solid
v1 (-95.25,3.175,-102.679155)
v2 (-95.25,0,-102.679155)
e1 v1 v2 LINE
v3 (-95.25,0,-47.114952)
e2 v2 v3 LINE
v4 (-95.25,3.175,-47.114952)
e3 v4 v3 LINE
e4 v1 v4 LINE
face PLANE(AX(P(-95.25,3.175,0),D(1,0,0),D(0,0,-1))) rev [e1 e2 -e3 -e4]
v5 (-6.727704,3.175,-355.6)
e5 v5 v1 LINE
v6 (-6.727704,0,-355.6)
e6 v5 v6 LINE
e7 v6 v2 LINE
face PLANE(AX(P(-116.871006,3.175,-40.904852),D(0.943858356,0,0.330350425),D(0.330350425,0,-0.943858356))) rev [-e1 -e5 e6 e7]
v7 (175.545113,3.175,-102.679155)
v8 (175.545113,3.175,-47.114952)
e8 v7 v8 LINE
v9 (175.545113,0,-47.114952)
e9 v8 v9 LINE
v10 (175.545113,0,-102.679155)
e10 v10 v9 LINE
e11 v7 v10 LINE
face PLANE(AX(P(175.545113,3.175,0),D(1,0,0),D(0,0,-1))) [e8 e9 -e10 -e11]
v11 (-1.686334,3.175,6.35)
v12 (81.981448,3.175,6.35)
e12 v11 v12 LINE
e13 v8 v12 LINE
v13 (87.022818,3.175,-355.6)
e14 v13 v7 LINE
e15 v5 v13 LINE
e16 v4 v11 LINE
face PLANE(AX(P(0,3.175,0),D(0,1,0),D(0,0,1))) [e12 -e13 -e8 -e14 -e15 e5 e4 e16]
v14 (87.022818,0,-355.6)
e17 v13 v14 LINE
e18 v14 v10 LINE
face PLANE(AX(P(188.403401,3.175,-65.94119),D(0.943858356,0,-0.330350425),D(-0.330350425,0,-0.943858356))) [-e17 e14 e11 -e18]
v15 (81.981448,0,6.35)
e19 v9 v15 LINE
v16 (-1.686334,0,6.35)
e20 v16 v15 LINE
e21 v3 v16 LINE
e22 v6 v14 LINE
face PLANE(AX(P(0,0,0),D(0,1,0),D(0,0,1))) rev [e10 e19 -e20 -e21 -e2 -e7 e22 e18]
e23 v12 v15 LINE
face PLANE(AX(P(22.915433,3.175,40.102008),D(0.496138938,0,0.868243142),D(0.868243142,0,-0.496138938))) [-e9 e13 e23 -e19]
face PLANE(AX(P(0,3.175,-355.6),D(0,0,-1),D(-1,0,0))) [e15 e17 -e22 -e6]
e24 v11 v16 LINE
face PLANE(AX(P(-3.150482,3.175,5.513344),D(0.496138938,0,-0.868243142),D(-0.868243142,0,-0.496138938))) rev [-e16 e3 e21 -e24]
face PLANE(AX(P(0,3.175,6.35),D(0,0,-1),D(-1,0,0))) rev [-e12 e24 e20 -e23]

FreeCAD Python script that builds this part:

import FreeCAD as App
import Part
import Sketcher
from FreeCAD import Vector
Q = App.Units.Quantity

doc = App.newDocument("Part")
body = doc.addObject("PartDesign::Body", "Body")

# Sketch on XZ plane
sketch1 = doc.addObject("Sketcher::SketchObject", "Sketch")
body.addObject(sketch1)
sketch1.AttachmentSupport = (doc.XZ_Plane, [""])
sketch1.MapMode = "FlatFace"
sketch1.addGeometry([
    Part.LineSegment(Vector(-7, -356, 0), Vector(-95, -103, 0)),  # 0
    Part.LineSegment(Vector(-95, -103, 0), Vector(-95, -47, 0)),  # 1
    Part.LineSegment(Vector(-95, -47, 0), Vector(-2, 6, 0)),  # 2
    Part.LineSegment(Vector(-2, 6, 0), Vector(82, 6, 0)),  # 3
    Part.LineSegment(Vector(82, 6, 0), Vector(176, -47, 0)),  # 4
    Part.LineSegment(Vector(176, -47, 0), Vector(176, -103, 0)),  # 5
    Part.LineSegment(Vector(176, -103, 0), Vector(87, -356, 0)),  # 6
    Part.LineSegment(Vector(87, -356, 0), Vector(-7, -356, 0)),  # 7
], False)
sketch1.addConstraint([
    Sketcher.Constraint("Coincident", 0, 2, 1, 1),
    Sketcher.Constraint("Coincident", 1, 2, 2, 1),
    Sketcher.Constraint("Coincident", 2, 2, 3, 1),
    Sketcher.Constraint("Coincident", 3, 2, 4, 1),
    Sketcher.Constraint("Coincident", 4, 2, 5, 1),
    Sketcher.Constraint("Coincident", 5, 2, 6, 1),
    Sketcher.Constraint("Coincident", 6, 2, 7, 1),
    Sketcher.Constraint("Coincident", 7, 2, 0, 1),
    Sketcher.Constraint("Vertical", 1),
    Sketcher.Constraint("Horizontal", 3),
    Sketcher.Constraint("Vertical", 5),
    Sketcher.Constraint("Horizontal", 7),
    Sketcher.Constraint("Horizontal", 1, 2, 4, 2),
    Sketcher.Constraint("Horizontal", 0, 2, 5, 2),
    Sketcher.Constraint("Equal", 2, 4),
    Sketcher.Constraint("Equal", 0, 6),
    Sketcher.Constraint("DistanceY", 6, 2, -1, 1, Q("14 in")),
    Sketcher.Constraint("DistanceX", 0, 2, -1, 1, Q("3.75 in")),
    Sketcher.Constraint("DistanceY", -1, 1, 2, 2, Q("0.25 in")),
    Sketcher.Constraint("DistanceX", 3, 1, 3, 2, 83.667782),
    Sketcher.Constraint("Distance", 0, 267.964831),
    Sketcher.Constraint("DistanceX", 7, 2, 7, 1, 93.750522),
    Sketcher.Constraint("DistanceY", 1, 1, 1, 2, 55.564203),
    Sketcher.Constraint("DistanceY", 1, 2, -1, 1, 47.114952),
])
pad1 = doc.addObject("PartDesign::Pad", "Pad")
body.addObject(pad1)
pad1.Profile = sketch1
pad1.Length = Q("0.125 in")
pad1.Reversed = True

doc.recompute()
